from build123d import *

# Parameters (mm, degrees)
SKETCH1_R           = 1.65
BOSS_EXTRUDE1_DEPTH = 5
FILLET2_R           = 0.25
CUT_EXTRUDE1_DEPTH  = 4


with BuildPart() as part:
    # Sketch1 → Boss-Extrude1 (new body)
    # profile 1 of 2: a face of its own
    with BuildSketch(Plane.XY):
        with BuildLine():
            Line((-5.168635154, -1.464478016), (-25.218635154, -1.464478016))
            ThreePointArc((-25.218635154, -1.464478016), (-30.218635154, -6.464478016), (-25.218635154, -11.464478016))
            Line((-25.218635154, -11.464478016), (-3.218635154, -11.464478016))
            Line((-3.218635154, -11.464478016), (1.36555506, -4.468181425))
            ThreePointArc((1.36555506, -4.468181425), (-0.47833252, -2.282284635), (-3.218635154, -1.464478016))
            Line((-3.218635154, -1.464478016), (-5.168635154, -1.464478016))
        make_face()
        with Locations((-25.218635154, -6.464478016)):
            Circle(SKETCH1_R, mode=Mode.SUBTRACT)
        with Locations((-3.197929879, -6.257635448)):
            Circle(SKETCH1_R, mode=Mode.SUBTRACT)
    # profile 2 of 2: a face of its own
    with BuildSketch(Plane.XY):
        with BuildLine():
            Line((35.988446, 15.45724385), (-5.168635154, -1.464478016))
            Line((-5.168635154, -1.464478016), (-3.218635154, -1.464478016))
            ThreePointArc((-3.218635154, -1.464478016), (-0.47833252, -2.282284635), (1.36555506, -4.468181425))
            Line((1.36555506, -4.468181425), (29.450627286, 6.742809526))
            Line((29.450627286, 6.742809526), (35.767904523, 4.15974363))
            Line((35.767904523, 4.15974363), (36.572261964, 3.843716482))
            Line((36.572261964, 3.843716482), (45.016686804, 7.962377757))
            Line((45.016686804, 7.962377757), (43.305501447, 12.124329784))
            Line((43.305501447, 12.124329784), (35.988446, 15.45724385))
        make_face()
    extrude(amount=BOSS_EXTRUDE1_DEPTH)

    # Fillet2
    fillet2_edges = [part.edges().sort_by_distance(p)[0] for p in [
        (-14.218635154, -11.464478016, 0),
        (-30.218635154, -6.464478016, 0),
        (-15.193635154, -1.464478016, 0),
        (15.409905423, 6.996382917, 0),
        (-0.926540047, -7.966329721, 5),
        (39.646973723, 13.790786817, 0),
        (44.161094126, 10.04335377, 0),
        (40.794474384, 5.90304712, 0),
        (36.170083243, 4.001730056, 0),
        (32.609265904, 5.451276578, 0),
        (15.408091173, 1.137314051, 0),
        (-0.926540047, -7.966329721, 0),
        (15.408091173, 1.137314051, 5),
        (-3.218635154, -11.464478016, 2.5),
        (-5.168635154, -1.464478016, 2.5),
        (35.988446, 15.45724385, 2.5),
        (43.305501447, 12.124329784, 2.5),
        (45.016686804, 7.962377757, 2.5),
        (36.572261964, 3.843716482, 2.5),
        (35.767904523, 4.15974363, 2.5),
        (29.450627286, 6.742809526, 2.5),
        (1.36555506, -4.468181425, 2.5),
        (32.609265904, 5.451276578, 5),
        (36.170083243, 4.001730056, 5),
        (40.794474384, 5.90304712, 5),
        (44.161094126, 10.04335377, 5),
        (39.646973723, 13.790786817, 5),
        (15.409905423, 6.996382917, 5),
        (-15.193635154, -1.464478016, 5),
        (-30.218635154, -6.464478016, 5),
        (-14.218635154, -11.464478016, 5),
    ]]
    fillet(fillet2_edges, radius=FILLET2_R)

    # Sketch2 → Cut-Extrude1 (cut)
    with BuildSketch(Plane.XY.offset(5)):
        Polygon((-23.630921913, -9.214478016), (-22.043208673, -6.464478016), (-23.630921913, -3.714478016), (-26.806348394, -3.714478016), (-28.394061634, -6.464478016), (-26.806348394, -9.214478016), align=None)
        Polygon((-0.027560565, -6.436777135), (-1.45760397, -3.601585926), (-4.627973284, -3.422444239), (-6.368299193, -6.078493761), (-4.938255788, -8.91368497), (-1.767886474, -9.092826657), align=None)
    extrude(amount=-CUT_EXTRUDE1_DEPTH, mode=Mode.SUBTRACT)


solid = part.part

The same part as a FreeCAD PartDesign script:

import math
import FreeCAD as App
import Part
import Sketcher

V = App.Vector
Q = App.Units.Quantity


def edges_at(feature, points):
    """Names of the edges that pass closest to the given points."""
    edges = feature.Shape.Edges
    near = lambda p: min(range(len(edges)), key=lambda i: edges[i].distToShape(Part.Vertex(*p))[0])
    return sorted({f"Edge{near(p) + 1}" for p in points})


def add_polygon(sketch, points):
    """Adds a closed chain of lines whose ends are joined by coincident constraints."""
    first, n = sketch.GeometryCount, len(points)
    for a, b in zip(points, points[1:] + points[:1]):
        sketch.addGeometry(Part.LineSegment(App.Vector(*a, 0), App.Vector(*b, 0)), False)
    for i in range(n):
        sketch.addConstraint(Sketcher.Constraint("Coincident", first + i, 2, first + (i + 1) % n, 1))

doc = App.newDocument("Part")
body = doc.addObject("PartDesign::Body", "Body")

sketch1 = doc.addObject("Sketcher::SketchObject", "Sketch")
body.addObject(sketch1)
sketch1.AttachmentSupport = (doc.XY_Plane, [""])
sketch1.MapMode = "FlatFace"
sketch1.addGeometry([
    Part.ArcOfCircle(Part.Circle(V(-25.2, -6.5, 0), V(0, 0, 1), 5), math.radians(90), math.radians(270)),
    Part.LineSegment(V(-25.2, -11.5, 0), V(-3.2, -11.5, 0)),
    Part.LineSegment(V(-3.2, -11.5, 0), V(1.4, -4.5, 0)),
    Part.LineSegment(V(1.4, -4.5, 0), V(29.5, 6.7, 0)),
    Part.LineSegment(V(29.5, 6.7, 0), V(35.8, 4.2, 0)),
    Part.LineSegment(V(35.8, 4.2, 0), V(36.6, 3.8, 0)),
    Part.LineSegment(V(36.6, 3.8, 0), V(45, 8, 0)),
    Part.LineSegment(V(45, 8, 0), V(43.3, 12.1, 0)),
    Part.LineSegment(V(43.3, 12.1, 0), V(36, 15.5, 0)),
    Part.LineSegment(V(36, 15.5, 0), V(-5.2, -1.5, 0)),
    Part.LineSegment(V(-5.2, -1.5, 0), V(-25.2, -1.5, 0)),
    Part.Circle(V(-25.2, -6.5, 0), V(0, 0, 1), 1.6),
    Part.Circle(V(-3.2, -6.3, 0), V(0, 0, 1), 1.6),
], False)
sketch1.addConstraint([
    Sketcher.Constraint("Tangent", 0, 2, 1, 1),
    Sketcher.Constraint("Coincident", 1, 2, 2, 1),
    Sketcher.Constraint("Coincident", 2, 2, 3, 1),
    Sketcher.Constraint("Coincident", 3, 2, 4, 1),
    Sketcher.Constraint("Coincident", 4, 2, 5, 1),
    Sketcher.Constraint("Coincident", 5, 2, 6, 1),
    Sketcher.Constraint("Coincident", 6, 2, 7, 1),
    Sketcher.Constraint("Coincident", 7, 2, 8, 1),
    Sketcher.Constraint("Coincident", 8, 2, 9, 1),
    Sketcher.Constraint("Coincident", 9, 2, 10, 1),
    Sketcher.Constraint("Tangent", 10, 2, 0, 1),
    Sketcher.Constraint("Horizontal", 1),
    Sketcher.Constraint("Horizontal", 10),
    Sketcher.Constraint("Coincident", 11, 3, 0, 3),
    Sketcher.Constraint("Equal", 11, 12),
    Sketcher.Constraint("Perpendicular", 7, 9),
    Sketcher.Constraint("Radius", 0, Q("5 mm")),
    Sketcher.Constraint("Diameter", 11, Q("3.3 mm")),
    Sketcher.Constraint("DistanceX", 1, 1, 1, 2, Q("22 mm")),
    Sketcher.Constraint("Distance", 7, Q("4.5 mm")),
    Sketcher.Constraint("Distance", 9, Q("44.5 mm")),
    Sketcher.Constraint("DistanceX", 10, 2, 10, 1, Q("20.05 mm")),
    Sketcher.Constraint("Angle", 7, Q("112.35 deg")),
    Sketcher.Constraint("Distance", 3, Q("30.24 mm")),
    Sketcher.Constraint("Distance", 6, Q("9.395301 mm")),
    Sketcher.Constraint("DistanceX", -1, 1, 7, 2, Q("43.305501 mm")),
    Sketcher.Constraint("DistanceY", 4, 2, 8, 2, Q("11.2975 mm")),
    Sketcher.Constraint("Distance", 4, Q("6.82497 mm")),
    Sketcher.Constraint("DistanceY", 0, 3, -1, 1, Q("6.464478 mm")),
    Sketcher.Constraint("DistanceX", 12, 3, -1, 1, Q("3.19793 mm")),
    Sketcher.Constraint("DistanceY", 2, 2, -1, 1, Q("4.468181 mm")),
    Sketcher.Constraint("DistanceY", -1, 1, 3, 2, Q("6.74281 mm")),
    Sketcher.Constraint("DistanceX", -1, 1, 5, 2, Q("36.572262 mm")),
    Sketcher.Constraint("DistanceY", -1, 1, 7, 2, Q("12.12433 mm")),
    Sketcher.Constraint("DistanceX", 1, 2, 2, 2, Q("4.58419 mm")),
    Sketcher.Constraint("DistanceY", 12, 3, 4, 2, Q("10.417379 mm")),
    Sketcher.Constraint("DistanceX", 3, 2, 6, 2, Q("15.56606 mm")),
])
pad1 = doc.addObject("PartDesign::Pad", "Pad")
body.addObject(pad1)
pad1.Profile = sketch1
pad1.Length = 5
doc.recompute()

fillet = doc.addObject("PartDesign::Fillet", "Fillet")
body.addObject(fillet)
fillet.Base = (pad1, edges_at(pad1, [
    (-14.219, -11.464, 0),
    (-30.219, -6.464, 0),
    (-15.194, -1.464, 0),
    (15.41, 6.996, 0),
    (-0.927, -7.966, 5),
    (39.647, 13.791, 0),
    (44.161, 10.043, 0),
    (40.794, 5.903, 0),
    (36.17, 4.002, 0),
    (32.609, 5.451, 0),
    (15.408, 1.137, 0),
    (-0.927, -7.966, 0),
    (15.408, 1.137, 5),
    (-3.219, -11.464, 2.5),
    (-5.169, -1.464, 2.5),
    (35.988, 15.457, 2.5),
    (43.306, 12.124, 2.5),
    (45.017, 7.962, 2.5),
    (36.572, 3.844, 2.5),
    (35.768, 4.16, 2.5),
    (29.451, 6.743, 2.5),
    (1.366, -4.468, 2.5),
    (32.609, 5.451, 5),
    (36.17, 4.002, 5),
    (40.794, 5.903, 5),
    (44.161, 10.043, 5),
    (39.647, 13.791, 5),
    (15.41, 6.996, 5),
    (-15.194, -1.464, 5),
    (-30.219, -6.464, 5),
    (-14.219, -11.464, 5),
]))
fillet.Radius = 0.25

sketch2 = doc.addObject("Sketcher::SketchObject", "Sketch001")
body.addObject(sketch2)
sketch2.AttachmentSupport = (doc.XY_Plane, [""])
sketch2.MapMode = "FlatFace"
sketch2.AttachmentOffset = App.Placement(V(0, 0, 5), App.Rotation())
add_polygon(sketch2, [(-23.6, -9.2), (-22, -6.5), (-23.6, -3.7), (-26.8, -3.7), (-28.4, -6.5), (-26.8, -9.2)])
add_polygon(sketch2, [(0, -6.4), (-1.5, -3.6), (-4.6, -3.4), (-6.4, -6.1), (-4.9, -8.9), (-1.8, -9.1)])
sketch2.addConstraint([
    Sketcher.Constraint("Horizontal", 2),
    Sketcher.Constraint("Horizontal", 5),
    Sketcher.Constraint("Parallel", 0, 3),
    Sketcher.Constraint("Parallel", 1, 4),
    Sketcher.Constraint("Parallel", 6, 9),
    Sketcher.Constraint("Parallel", 7, 10),
    Sketcher.Constraint("Parallel", 8, 11),
    Sketcher.Constraint("Horizontal", 0, 2, 3, 2),
    Sketcher.Constraint("Vertical", 2, 2, 4, 2),
    Sketcher.Constraint("Vertical", 1, 2, 5, 2),
    Sketcher.Constraint("Equal", 4, 6),
    Sketcher.Constraint("Equal", 6, 7),
    Sketcher.Constraint("Equal", 7, 8),
    Sketcher.Constraint("Equal", 8, 9),
    Sketcher.Constraint("Angle", 0, Q("60 deg")),
    Sketcher.Constraint("DistanceY", 4, 2, 2, 2, Q("5.5 mm")),
    Sketcher.Constraint("DistanceX", 8, 2, -1, 1, Q("6.368299 mm")),
    Sketcher.Constraint("DistanceY", 9, 2, 6, 2, Q("5.312099 mm")),
    Sketcher.Constraint("DistanceX", 2, 2, 2, 1, Q("3.175426 mm")),
    Sketcher.Constraint("DistanceX", 0, 2, -1, 1, Q("22.043209 mm")),
    Sketcher.Constraint("DistanceY", 0, 2, -1, 1, Q("6.464478 mm")),
    Sketcher.Constraint("DistanceX", 11, 2, -1, 1, Q("0.027561 mm")),
    Sketcher.Constraint("DistanceY", 6, 2, 7, 2, Q("0.179142 mm")),
    Sketcher.Constraint("DistanceY", 10, 2, 0, 2, Q("2.628349 mm")),
])
pocket1 = doc.addObject("PartDesign::Pocket", "Pocket")
body.addObject(pocket1)
pocket1.Profile = sketch2
pocket1.Length = 4

doc.recompute()
